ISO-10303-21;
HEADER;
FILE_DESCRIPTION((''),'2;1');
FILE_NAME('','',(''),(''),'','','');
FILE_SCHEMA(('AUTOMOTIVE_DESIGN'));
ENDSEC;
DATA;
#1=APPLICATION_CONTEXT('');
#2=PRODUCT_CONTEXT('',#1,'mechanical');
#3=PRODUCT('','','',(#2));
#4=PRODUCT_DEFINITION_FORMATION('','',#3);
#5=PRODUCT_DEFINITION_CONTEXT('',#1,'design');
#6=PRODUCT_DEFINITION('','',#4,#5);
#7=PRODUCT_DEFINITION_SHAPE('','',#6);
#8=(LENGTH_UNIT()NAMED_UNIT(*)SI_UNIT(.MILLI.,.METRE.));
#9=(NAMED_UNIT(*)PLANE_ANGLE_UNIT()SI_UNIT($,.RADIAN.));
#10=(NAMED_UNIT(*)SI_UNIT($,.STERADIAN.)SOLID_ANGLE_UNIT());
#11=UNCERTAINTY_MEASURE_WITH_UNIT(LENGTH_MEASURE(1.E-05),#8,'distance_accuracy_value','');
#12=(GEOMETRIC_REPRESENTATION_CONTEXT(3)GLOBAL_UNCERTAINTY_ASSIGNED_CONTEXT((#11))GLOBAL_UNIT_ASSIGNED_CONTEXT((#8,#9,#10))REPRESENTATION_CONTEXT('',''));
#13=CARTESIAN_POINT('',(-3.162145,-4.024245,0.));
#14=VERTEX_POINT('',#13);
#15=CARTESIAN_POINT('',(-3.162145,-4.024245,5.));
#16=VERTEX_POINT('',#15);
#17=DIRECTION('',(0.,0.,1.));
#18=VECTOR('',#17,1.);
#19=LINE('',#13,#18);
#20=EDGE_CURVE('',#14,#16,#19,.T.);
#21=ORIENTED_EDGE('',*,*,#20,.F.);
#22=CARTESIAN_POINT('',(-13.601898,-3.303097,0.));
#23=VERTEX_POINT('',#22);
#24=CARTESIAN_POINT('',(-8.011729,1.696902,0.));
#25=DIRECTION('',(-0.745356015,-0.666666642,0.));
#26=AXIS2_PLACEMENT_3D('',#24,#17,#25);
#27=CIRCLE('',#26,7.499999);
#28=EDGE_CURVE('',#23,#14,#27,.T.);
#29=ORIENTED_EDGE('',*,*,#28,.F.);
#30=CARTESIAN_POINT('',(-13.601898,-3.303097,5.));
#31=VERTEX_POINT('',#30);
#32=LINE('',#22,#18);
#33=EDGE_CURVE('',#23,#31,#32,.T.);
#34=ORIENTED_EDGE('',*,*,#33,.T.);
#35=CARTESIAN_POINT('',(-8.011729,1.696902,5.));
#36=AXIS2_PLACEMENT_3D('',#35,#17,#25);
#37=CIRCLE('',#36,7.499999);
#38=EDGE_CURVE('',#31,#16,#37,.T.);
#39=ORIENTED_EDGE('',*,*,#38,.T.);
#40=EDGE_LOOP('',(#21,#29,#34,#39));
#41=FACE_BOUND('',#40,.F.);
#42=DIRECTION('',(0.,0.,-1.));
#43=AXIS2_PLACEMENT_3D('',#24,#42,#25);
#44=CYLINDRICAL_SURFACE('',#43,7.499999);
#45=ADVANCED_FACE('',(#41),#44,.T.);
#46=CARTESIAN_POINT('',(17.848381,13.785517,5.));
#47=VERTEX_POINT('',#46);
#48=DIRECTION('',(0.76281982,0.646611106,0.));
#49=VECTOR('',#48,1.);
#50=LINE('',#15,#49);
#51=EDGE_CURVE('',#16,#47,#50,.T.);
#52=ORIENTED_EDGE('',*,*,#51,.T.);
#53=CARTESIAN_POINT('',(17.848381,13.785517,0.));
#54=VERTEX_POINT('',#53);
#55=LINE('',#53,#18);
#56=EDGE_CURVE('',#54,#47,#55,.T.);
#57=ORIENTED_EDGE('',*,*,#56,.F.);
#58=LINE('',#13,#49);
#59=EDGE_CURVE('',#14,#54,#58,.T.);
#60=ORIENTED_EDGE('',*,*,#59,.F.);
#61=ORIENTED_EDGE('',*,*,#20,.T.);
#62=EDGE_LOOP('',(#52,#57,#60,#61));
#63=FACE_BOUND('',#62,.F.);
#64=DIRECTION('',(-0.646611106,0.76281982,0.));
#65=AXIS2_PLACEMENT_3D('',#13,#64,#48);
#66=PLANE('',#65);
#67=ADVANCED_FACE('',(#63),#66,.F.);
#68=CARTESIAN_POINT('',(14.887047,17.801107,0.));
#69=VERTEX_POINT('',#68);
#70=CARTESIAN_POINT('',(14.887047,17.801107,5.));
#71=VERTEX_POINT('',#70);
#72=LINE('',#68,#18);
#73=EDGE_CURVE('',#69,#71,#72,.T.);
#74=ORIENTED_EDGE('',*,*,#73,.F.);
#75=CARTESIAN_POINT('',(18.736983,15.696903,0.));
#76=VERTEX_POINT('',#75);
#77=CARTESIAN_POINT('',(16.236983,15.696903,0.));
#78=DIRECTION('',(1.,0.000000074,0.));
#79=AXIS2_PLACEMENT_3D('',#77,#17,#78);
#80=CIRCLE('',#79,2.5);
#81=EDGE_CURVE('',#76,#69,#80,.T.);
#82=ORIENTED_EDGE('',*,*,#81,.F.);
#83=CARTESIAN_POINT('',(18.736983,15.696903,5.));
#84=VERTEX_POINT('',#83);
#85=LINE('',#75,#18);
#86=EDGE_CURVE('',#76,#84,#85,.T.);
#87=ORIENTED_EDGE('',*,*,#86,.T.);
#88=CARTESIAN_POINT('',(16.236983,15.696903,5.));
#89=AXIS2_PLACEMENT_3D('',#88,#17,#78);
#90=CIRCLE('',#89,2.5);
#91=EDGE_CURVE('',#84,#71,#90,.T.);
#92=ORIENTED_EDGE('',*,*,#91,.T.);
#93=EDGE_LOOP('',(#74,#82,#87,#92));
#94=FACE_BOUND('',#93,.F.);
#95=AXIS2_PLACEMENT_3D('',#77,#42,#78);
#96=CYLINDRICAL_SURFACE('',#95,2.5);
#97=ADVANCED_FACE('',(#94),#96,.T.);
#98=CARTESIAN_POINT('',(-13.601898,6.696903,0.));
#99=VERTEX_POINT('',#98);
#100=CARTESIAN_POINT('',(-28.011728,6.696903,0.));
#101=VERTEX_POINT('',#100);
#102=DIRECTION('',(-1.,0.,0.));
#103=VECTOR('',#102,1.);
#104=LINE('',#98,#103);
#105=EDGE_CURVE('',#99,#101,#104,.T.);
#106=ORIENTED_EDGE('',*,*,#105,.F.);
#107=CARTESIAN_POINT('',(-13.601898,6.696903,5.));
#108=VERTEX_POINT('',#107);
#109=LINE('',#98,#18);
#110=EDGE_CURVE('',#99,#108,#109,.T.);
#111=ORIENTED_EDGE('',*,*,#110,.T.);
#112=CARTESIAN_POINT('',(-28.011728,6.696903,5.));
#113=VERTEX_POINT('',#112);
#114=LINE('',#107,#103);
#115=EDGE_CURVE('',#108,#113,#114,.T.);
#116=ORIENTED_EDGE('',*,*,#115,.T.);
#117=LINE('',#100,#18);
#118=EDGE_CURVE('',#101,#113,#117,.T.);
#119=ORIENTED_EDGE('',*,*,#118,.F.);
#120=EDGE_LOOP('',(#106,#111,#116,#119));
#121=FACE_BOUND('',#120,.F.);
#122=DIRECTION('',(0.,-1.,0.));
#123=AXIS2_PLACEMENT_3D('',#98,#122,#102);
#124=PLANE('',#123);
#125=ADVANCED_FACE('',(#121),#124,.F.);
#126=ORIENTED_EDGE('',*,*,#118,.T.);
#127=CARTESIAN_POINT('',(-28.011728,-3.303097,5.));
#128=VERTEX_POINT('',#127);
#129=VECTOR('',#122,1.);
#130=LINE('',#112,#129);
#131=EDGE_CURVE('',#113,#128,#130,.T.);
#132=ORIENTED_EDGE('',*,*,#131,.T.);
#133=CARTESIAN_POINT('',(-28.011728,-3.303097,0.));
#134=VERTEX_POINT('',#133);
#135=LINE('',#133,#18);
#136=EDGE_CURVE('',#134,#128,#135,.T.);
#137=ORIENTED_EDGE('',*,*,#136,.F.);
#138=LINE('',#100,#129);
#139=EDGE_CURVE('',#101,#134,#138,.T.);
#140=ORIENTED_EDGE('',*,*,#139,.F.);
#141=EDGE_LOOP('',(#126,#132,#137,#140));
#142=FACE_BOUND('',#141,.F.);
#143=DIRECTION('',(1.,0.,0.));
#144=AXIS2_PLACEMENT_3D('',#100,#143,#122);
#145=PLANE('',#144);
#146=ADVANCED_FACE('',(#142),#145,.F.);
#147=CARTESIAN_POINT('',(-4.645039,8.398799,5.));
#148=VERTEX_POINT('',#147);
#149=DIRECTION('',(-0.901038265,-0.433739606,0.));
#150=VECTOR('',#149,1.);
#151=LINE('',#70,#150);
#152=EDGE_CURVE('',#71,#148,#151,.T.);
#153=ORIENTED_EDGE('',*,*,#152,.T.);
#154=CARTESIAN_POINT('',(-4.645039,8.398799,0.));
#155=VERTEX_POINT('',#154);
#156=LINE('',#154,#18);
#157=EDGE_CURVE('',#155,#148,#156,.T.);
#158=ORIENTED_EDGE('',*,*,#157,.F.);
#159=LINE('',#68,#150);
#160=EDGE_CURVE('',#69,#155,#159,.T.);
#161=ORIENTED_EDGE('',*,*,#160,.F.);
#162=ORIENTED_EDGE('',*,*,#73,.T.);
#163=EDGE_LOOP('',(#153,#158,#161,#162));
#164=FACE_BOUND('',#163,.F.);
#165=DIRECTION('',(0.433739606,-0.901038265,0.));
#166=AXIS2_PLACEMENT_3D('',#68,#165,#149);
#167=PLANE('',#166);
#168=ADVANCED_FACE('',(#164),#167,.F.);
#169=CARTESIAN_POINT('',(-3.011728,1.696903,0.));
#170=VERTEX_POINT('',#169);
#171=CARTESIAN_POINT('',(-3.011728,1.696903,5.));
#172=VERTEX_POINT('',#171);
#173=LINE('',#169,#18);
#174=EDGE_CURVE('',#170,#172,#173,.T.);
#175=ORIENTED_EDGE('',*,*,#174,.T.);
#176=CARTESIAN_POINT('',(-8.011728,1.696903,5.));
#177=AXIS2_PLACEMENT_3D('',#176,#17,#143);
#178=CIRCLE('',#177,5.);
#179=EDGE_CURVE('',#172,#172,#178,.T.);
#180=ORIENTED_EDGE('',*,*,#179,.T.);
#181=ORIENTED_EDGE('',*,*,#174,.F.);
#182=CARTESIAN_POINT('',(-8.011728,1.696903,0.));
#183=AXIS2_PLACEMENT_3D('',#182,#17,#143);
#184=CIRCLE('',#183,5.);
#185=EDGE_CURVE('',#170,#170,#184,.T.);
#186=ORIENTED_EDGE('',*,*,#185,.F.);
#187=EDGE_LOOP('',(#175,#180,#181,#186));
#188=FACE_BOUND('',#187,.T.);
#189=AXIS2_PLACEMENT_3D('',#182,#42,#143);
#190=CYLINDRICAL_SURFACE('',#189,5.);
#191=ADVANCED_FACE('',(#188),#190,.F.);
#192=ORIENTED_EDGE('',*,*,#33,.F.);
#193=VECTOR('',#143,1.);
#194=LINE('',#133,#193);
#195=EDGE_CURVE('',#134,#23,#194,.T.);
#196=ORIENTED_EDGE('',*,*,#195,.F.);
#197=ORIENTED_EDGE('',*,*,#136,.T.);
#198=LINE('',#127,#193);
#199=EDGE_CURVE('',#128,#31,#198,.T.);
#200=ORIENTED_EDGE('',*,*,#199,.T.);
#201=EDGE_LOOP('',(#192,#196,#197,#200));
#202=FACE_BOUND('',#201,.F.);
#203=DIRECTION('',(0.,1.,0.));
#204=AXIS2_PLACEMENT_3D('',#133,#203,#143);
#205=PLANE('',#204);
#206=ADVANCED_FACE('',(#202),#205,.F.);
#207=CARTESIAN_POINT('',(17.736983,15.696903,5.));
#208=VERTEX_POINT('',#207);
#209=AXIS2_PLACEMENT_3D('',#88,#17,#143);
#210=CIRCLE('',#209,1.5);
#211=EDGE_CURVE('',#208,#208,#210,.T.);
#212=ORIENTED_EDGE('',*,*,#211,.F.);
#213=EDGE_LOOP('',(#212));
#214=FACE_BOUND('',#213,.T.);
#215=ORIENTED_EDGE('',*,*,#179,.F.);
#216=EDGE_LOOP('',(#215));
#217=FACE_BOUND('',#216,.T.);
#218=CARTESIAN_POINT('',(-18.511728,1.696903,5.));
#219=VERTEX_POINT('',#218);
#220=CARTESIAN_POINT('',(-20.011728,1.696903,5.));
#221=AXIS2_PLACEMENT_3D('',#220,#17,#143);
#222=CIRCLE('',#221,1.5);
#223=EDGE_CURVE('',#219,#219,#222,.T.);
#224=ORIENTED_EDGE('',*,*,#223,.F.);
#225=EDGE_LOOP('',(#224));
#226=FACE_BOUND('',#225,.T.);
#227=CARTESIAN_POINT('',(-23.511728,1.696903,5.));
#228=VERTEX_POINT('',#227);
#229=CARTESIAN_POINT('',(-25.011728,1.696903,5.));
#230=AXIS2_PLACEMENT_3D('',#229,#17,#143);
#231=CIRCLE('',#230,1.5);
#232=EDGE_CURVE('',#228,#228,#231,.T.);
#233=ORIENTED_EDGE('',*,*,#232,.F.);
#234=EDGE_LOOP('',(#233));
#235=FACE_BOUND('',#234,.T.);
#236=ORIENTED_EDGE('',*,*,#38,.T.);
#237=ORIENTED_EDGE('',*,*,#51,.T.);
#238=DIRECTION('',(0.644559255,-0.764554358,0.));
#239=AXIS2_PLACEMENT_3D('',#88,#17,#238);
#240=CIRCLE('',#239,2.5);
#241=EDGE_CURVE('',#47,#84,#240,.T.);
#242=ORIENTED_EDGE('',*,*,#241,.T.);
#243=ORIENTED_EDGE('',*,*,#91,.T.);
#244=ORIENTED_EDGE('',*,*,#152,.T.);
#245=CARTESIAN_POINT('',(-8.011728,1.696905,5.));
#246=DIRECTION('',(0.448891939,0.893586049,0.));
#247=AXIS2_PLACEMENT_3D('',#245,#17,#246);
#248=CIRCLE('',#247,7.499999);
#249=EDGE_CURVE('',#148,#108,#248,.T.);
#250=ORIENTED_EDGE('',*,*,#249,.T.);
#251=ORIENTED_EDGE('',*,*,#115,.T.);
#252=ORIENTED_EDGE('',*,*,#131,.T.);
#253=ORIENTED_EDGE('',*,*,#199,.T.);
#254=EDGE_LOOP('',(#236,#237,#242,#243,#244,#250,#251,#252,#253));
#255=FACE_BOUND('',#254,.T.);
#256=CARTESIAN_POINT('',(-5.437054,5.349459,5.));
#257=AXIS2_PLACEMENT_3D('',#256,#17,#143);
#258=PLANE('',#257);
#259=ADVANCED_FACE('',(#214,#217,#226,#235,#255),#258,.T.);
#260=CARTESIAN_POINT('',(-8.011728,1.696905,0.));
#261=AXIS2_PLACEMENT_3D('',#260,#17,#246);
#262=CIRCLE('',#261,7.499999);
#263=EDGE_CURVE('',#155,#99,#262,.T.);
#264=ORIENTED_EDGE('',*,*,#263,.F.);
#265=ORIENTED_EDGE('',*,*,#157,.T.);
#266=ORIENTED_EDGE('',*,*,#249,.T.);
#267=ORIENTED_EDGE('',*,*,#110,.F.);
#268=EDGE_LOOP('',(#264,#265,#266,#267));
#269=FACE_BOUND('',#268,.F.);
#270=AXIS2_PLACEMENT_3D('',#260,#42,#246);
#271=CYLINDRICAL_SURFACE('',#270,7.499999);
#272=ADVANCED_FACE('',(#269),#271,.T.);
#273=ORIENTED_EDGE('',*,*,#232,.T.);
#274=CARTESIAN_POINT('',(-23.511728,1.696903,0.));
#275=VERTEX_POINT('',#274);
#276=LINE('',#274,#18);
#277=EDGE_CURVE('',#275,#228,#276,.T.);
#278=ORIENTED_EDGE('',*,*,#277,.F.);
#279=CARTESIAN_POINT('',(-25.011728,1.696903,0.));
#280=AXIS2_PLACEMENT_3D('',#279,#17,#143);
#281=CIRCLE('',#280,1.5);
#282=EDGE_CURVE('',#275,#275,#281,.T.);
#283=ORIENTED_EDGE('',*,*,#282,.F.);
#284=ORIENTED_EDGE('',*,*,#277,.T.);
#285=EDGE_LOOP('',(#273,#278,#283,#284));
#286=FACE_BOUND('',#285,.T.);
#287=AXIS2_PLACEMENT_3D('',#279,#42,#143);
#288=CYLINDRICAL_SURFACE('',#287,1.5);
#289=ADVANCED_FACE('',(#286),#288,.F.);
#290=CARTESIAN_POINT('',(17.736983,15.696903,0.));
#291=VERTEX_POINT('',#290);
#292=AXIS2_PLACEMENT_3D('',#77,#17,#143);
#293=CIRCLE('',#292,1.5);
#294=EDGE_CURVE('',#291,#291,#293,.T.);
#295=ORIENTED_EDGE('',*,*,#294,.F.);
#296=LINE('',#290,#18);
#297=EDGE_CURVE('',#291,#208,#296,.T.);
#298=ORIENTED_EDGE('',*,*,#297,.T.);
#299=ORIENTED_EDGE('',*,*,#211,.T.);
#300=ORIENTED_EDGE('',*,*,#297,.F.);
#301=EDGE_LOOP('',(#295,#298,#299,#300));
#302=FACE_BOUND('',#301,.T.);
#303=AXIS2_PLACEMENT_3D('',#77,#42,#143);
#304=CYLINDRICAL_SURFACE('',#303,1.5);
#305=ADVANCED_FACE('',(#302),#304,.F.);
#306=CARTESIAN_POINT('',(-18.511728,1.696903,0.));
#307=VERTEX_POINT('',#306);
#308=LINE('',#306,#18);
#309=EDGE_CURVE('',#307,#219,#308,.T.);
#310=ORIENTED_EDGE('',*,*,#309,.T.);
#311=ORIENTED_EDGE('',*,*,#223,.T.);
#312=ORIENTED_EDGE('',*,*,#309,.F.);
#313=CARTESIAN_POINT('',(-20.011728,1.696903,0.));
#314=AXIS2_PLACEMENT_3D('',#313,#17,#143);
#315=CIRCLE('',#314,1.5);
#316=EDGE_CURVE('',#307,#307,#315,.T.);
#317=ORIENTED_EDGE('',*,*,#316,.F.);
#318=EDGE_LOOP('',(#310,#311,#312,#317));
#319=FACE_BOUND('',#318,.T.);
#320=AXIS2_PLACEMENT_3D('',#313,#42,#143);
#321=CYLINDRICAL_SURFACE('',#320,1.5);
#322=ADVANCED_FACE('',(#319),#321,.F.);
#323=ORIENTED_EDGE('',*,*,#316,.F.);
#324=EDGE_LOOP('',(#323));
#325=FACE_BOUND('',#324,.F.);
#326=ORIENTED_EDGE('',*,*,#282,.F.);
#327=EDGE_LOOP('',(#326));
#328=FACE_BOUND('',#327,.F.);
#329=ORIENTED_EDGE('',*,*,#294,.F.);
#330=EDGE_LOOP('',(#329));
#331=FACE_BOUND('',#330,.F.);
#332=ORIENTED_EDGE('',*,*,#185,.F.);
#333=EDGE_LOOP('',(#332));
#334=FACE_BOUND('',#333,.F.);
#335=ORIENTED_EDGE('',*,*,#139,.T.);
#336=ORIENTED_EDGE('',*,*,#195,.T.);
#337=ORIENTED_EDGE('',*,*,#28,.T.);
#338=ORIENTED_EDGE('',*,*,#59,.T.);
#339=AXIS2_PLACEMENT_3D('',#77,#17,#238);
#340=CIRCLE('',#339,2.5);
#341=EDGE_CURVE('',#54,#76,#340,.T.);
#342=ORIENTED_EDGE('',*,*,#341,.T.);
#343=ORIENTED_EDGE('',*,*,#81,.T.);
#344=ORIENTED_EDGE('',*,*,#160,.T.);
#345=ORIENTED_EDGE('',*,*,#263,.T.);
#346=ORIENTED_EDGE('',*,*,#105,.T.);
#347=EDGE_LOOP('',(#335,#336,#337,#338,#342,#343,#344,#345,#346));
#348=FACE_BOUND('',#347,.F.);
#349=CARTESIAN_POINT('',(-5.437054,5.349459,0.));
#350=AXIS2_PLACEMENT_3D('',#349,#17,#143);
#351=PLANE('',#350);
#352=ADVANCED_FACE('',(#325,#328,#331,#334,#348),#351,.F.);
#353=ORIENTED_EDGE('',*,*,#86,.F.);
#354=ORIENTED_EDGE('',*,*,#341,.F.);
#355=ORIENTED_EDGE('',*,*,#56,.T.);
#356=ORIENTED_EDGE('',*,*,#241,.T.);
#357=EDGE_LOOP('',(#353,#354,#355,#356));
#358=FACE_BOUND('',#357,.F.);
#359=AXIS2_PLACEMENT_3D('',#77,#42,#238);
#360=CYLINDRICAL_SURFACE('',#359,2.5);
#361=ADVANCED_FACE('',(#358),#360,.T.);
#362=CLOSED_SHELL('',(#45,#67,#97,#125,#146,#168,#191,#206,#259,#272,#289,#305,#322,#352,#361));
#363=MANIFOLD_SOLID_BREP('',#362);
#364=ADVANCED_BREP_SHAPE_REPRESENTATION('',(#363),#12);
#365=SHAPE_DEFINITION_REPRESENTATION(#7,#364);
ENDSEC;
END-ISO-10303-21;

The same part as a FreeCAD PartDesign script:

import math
import FreeCAD as App
import Part
import Sketcher

V = App.Vector
Q = App.Units.Quantity

doc = App.newDocument("Part")
body = doc.addObject("PartDesign::Body", "Body")

# Sketch on XY plane
sketch1 = body.newObject("Sketcher::SketchObject", "Sketch")
sketch1.AttachmentSupport = (doc.getObject("XY_Plane"), [""])
sketch1.MapMode = "FlatFace"
sketch1.addGeometry([
    Part.LineSegment(V(-13.6, 6.7, 0), V(-28, 6.7, 0)),  # 0
    Part.LineSegment(V(-28, 6.7, 0), V(-28, -3.3, 0)),  # 1
    Part.LineSegment(V(-28, -3.3, 0), V(-13.6, -3.3, 0)),  # 2
    Part.ArcOfCircle(Part.Circle(V(-8, 1.7, 0), V(0, 0, 1), 7.5), math.radians(-138), math.radians(-50)),  # 3
    Part.LineSegment(V(-3.2, -4, 0), V(17.8, 13.8, 0)),  # 4
    Part.ArcOfCircle(Part.Circle(V(16.2, 15.7, 0), V(0, 0, 1), 2.5), math.radians(-50), math.radians(0)),  # 5
    Part.ArcOfCircle(Part.Circle(V(16.2, 15.7, 0), V(0, 0, 1), 2.5), math.radians(0), math.radians(123)),  # 6
    Part.LineSegment(V(14.9, 17.8, 0), V(-4.6, 8.4, 0)),  # 7
    Part.ArcOfCircle(Part.Circle(V(-8, 1.7, 0), V(0, 0, 1), 7.5), math.radians(63), math.radians(138)),  # 8
    Part.Circle(V(-25, 1.7, 0), V(0, 0, 1), 1.5),  # 9
    Part.Circle(V(-20, 1.7, 0), V(0, 0, 1), 1.5),  # 10
    Part.Circle(V(-8, 1.7, 0), V(0, 0, 1), 5),  # 11
    Part.Circle(V(16.2, 15.7, 0), V(0, 0, 1), 1.5),  # 12
], False)
sketch1.addConstraint([
    Sketcher.Constraint("Coincident", 0, 2, 1, 1),
    Sketcher.Constraint("Coincident", 1, 2, 2, 1),
    Sketcher.Constraint("Coincident", 2, 2, 3, 1),
    Sketcher.Constraint("Tangent", 3, 2, 4, 1),
    Sketcher.Constraint("Coincident", 4, 2, 5, 1),
    Sketcher.Constraint("Tangent", 5, 2, 6, 1),
    Sketcher.Constraint("Coincident", 6, 2, 7, 1),
    Sketcher.Constraint("Coincident", 7, 2, 8, 1),
    Sketcher.Constraint("Coincident", 8, 2, 0, 1),
    Sketcher.Constraint("Horizontal", 0),
    Sketcher.Constraint("Vertical", 1),
    Sketcher.Constraint("Horizontal", 2),
    Sketcher.Constraint("Coincident", 8, 3, 3, 3),
    Sketcher.Constraint("Coincident", 11, 3, 3, 3),
    Sketcher.Constraint("Coincident", 12, 3, 5, 3),
    Sketcher.Constraint("Equal", 5, 6),
    Sketcher.Constraint("Equal", 3, 8),
    Sketcher.Constraint("Equal", 9, 10),
    Sketcher.Constraint("Equal", 10, 12),
    Sketcher.Constraint("Horizontal", 8, 3, 9, 3),
    Sketcher.Constraint("Horizontal", 9, 3, 10, 3),
    Sketcher.Constraint("Horizontal", 12, 3, 5, 2),
    Sketcher.Constraint("Vertical", 2, 2, 8, 2),
    Sketcher.Constraint("Diameter", 9, Q("3 mm")),
    Sketcher.Constraint("Diameter", 11, Q("10 mm")),
    Sketcher.Constraint("Radius", 3, Q("7.499999 mm")),
    Sketcher.Constraint("Radius", 5, Q("2.5 mm")),
    Sketcher.Constraint("DistanceY", 1, 2, 1, 1, Q("10 mm")),
    Sketcher.Constraint("DistanceY", 3, 3, 5, 3, Q("14.000001 mm")),
    Sketcher.Constraint("DistanceX", 9, 3, 3, 3, Q("16.999999 mm")),
    Sketcher.Constraint("DistanceX", 9, 3, 10, 3, Q("5 mm")),
    Sketcher.Constraint("DistanceX", 0, 2, 9, 3, Q("3 mm")),
    Sketcher.Constraint("DistanceY", -1, 1, 7, 2, Q("8.398799 mm")),
    Sketcher.Constraint("DistanceX", 8, 2, -1, 1, Q("13.601898 mm")),
    Sketcher.Constraint("DistanceX", 12, 3, 4, 2, Q("1.611398 mm")),
    Sketcher.Constraint("Distance", 7, Q("21.67731 mm")),
    Sketcher.Constraint("DistanceX", -1, 1, 4, 2, Q("17.848381 mm")),
    Sketcher.Constraint("DistanceX", 7, 2, -1, 1, Q("4.645039 mm")),
])
pad1 = body.newObject("PartDesign::Pad", "Pad")
pad1.Profile = sketch1
pad1.Length = 5

doc.recompute()
